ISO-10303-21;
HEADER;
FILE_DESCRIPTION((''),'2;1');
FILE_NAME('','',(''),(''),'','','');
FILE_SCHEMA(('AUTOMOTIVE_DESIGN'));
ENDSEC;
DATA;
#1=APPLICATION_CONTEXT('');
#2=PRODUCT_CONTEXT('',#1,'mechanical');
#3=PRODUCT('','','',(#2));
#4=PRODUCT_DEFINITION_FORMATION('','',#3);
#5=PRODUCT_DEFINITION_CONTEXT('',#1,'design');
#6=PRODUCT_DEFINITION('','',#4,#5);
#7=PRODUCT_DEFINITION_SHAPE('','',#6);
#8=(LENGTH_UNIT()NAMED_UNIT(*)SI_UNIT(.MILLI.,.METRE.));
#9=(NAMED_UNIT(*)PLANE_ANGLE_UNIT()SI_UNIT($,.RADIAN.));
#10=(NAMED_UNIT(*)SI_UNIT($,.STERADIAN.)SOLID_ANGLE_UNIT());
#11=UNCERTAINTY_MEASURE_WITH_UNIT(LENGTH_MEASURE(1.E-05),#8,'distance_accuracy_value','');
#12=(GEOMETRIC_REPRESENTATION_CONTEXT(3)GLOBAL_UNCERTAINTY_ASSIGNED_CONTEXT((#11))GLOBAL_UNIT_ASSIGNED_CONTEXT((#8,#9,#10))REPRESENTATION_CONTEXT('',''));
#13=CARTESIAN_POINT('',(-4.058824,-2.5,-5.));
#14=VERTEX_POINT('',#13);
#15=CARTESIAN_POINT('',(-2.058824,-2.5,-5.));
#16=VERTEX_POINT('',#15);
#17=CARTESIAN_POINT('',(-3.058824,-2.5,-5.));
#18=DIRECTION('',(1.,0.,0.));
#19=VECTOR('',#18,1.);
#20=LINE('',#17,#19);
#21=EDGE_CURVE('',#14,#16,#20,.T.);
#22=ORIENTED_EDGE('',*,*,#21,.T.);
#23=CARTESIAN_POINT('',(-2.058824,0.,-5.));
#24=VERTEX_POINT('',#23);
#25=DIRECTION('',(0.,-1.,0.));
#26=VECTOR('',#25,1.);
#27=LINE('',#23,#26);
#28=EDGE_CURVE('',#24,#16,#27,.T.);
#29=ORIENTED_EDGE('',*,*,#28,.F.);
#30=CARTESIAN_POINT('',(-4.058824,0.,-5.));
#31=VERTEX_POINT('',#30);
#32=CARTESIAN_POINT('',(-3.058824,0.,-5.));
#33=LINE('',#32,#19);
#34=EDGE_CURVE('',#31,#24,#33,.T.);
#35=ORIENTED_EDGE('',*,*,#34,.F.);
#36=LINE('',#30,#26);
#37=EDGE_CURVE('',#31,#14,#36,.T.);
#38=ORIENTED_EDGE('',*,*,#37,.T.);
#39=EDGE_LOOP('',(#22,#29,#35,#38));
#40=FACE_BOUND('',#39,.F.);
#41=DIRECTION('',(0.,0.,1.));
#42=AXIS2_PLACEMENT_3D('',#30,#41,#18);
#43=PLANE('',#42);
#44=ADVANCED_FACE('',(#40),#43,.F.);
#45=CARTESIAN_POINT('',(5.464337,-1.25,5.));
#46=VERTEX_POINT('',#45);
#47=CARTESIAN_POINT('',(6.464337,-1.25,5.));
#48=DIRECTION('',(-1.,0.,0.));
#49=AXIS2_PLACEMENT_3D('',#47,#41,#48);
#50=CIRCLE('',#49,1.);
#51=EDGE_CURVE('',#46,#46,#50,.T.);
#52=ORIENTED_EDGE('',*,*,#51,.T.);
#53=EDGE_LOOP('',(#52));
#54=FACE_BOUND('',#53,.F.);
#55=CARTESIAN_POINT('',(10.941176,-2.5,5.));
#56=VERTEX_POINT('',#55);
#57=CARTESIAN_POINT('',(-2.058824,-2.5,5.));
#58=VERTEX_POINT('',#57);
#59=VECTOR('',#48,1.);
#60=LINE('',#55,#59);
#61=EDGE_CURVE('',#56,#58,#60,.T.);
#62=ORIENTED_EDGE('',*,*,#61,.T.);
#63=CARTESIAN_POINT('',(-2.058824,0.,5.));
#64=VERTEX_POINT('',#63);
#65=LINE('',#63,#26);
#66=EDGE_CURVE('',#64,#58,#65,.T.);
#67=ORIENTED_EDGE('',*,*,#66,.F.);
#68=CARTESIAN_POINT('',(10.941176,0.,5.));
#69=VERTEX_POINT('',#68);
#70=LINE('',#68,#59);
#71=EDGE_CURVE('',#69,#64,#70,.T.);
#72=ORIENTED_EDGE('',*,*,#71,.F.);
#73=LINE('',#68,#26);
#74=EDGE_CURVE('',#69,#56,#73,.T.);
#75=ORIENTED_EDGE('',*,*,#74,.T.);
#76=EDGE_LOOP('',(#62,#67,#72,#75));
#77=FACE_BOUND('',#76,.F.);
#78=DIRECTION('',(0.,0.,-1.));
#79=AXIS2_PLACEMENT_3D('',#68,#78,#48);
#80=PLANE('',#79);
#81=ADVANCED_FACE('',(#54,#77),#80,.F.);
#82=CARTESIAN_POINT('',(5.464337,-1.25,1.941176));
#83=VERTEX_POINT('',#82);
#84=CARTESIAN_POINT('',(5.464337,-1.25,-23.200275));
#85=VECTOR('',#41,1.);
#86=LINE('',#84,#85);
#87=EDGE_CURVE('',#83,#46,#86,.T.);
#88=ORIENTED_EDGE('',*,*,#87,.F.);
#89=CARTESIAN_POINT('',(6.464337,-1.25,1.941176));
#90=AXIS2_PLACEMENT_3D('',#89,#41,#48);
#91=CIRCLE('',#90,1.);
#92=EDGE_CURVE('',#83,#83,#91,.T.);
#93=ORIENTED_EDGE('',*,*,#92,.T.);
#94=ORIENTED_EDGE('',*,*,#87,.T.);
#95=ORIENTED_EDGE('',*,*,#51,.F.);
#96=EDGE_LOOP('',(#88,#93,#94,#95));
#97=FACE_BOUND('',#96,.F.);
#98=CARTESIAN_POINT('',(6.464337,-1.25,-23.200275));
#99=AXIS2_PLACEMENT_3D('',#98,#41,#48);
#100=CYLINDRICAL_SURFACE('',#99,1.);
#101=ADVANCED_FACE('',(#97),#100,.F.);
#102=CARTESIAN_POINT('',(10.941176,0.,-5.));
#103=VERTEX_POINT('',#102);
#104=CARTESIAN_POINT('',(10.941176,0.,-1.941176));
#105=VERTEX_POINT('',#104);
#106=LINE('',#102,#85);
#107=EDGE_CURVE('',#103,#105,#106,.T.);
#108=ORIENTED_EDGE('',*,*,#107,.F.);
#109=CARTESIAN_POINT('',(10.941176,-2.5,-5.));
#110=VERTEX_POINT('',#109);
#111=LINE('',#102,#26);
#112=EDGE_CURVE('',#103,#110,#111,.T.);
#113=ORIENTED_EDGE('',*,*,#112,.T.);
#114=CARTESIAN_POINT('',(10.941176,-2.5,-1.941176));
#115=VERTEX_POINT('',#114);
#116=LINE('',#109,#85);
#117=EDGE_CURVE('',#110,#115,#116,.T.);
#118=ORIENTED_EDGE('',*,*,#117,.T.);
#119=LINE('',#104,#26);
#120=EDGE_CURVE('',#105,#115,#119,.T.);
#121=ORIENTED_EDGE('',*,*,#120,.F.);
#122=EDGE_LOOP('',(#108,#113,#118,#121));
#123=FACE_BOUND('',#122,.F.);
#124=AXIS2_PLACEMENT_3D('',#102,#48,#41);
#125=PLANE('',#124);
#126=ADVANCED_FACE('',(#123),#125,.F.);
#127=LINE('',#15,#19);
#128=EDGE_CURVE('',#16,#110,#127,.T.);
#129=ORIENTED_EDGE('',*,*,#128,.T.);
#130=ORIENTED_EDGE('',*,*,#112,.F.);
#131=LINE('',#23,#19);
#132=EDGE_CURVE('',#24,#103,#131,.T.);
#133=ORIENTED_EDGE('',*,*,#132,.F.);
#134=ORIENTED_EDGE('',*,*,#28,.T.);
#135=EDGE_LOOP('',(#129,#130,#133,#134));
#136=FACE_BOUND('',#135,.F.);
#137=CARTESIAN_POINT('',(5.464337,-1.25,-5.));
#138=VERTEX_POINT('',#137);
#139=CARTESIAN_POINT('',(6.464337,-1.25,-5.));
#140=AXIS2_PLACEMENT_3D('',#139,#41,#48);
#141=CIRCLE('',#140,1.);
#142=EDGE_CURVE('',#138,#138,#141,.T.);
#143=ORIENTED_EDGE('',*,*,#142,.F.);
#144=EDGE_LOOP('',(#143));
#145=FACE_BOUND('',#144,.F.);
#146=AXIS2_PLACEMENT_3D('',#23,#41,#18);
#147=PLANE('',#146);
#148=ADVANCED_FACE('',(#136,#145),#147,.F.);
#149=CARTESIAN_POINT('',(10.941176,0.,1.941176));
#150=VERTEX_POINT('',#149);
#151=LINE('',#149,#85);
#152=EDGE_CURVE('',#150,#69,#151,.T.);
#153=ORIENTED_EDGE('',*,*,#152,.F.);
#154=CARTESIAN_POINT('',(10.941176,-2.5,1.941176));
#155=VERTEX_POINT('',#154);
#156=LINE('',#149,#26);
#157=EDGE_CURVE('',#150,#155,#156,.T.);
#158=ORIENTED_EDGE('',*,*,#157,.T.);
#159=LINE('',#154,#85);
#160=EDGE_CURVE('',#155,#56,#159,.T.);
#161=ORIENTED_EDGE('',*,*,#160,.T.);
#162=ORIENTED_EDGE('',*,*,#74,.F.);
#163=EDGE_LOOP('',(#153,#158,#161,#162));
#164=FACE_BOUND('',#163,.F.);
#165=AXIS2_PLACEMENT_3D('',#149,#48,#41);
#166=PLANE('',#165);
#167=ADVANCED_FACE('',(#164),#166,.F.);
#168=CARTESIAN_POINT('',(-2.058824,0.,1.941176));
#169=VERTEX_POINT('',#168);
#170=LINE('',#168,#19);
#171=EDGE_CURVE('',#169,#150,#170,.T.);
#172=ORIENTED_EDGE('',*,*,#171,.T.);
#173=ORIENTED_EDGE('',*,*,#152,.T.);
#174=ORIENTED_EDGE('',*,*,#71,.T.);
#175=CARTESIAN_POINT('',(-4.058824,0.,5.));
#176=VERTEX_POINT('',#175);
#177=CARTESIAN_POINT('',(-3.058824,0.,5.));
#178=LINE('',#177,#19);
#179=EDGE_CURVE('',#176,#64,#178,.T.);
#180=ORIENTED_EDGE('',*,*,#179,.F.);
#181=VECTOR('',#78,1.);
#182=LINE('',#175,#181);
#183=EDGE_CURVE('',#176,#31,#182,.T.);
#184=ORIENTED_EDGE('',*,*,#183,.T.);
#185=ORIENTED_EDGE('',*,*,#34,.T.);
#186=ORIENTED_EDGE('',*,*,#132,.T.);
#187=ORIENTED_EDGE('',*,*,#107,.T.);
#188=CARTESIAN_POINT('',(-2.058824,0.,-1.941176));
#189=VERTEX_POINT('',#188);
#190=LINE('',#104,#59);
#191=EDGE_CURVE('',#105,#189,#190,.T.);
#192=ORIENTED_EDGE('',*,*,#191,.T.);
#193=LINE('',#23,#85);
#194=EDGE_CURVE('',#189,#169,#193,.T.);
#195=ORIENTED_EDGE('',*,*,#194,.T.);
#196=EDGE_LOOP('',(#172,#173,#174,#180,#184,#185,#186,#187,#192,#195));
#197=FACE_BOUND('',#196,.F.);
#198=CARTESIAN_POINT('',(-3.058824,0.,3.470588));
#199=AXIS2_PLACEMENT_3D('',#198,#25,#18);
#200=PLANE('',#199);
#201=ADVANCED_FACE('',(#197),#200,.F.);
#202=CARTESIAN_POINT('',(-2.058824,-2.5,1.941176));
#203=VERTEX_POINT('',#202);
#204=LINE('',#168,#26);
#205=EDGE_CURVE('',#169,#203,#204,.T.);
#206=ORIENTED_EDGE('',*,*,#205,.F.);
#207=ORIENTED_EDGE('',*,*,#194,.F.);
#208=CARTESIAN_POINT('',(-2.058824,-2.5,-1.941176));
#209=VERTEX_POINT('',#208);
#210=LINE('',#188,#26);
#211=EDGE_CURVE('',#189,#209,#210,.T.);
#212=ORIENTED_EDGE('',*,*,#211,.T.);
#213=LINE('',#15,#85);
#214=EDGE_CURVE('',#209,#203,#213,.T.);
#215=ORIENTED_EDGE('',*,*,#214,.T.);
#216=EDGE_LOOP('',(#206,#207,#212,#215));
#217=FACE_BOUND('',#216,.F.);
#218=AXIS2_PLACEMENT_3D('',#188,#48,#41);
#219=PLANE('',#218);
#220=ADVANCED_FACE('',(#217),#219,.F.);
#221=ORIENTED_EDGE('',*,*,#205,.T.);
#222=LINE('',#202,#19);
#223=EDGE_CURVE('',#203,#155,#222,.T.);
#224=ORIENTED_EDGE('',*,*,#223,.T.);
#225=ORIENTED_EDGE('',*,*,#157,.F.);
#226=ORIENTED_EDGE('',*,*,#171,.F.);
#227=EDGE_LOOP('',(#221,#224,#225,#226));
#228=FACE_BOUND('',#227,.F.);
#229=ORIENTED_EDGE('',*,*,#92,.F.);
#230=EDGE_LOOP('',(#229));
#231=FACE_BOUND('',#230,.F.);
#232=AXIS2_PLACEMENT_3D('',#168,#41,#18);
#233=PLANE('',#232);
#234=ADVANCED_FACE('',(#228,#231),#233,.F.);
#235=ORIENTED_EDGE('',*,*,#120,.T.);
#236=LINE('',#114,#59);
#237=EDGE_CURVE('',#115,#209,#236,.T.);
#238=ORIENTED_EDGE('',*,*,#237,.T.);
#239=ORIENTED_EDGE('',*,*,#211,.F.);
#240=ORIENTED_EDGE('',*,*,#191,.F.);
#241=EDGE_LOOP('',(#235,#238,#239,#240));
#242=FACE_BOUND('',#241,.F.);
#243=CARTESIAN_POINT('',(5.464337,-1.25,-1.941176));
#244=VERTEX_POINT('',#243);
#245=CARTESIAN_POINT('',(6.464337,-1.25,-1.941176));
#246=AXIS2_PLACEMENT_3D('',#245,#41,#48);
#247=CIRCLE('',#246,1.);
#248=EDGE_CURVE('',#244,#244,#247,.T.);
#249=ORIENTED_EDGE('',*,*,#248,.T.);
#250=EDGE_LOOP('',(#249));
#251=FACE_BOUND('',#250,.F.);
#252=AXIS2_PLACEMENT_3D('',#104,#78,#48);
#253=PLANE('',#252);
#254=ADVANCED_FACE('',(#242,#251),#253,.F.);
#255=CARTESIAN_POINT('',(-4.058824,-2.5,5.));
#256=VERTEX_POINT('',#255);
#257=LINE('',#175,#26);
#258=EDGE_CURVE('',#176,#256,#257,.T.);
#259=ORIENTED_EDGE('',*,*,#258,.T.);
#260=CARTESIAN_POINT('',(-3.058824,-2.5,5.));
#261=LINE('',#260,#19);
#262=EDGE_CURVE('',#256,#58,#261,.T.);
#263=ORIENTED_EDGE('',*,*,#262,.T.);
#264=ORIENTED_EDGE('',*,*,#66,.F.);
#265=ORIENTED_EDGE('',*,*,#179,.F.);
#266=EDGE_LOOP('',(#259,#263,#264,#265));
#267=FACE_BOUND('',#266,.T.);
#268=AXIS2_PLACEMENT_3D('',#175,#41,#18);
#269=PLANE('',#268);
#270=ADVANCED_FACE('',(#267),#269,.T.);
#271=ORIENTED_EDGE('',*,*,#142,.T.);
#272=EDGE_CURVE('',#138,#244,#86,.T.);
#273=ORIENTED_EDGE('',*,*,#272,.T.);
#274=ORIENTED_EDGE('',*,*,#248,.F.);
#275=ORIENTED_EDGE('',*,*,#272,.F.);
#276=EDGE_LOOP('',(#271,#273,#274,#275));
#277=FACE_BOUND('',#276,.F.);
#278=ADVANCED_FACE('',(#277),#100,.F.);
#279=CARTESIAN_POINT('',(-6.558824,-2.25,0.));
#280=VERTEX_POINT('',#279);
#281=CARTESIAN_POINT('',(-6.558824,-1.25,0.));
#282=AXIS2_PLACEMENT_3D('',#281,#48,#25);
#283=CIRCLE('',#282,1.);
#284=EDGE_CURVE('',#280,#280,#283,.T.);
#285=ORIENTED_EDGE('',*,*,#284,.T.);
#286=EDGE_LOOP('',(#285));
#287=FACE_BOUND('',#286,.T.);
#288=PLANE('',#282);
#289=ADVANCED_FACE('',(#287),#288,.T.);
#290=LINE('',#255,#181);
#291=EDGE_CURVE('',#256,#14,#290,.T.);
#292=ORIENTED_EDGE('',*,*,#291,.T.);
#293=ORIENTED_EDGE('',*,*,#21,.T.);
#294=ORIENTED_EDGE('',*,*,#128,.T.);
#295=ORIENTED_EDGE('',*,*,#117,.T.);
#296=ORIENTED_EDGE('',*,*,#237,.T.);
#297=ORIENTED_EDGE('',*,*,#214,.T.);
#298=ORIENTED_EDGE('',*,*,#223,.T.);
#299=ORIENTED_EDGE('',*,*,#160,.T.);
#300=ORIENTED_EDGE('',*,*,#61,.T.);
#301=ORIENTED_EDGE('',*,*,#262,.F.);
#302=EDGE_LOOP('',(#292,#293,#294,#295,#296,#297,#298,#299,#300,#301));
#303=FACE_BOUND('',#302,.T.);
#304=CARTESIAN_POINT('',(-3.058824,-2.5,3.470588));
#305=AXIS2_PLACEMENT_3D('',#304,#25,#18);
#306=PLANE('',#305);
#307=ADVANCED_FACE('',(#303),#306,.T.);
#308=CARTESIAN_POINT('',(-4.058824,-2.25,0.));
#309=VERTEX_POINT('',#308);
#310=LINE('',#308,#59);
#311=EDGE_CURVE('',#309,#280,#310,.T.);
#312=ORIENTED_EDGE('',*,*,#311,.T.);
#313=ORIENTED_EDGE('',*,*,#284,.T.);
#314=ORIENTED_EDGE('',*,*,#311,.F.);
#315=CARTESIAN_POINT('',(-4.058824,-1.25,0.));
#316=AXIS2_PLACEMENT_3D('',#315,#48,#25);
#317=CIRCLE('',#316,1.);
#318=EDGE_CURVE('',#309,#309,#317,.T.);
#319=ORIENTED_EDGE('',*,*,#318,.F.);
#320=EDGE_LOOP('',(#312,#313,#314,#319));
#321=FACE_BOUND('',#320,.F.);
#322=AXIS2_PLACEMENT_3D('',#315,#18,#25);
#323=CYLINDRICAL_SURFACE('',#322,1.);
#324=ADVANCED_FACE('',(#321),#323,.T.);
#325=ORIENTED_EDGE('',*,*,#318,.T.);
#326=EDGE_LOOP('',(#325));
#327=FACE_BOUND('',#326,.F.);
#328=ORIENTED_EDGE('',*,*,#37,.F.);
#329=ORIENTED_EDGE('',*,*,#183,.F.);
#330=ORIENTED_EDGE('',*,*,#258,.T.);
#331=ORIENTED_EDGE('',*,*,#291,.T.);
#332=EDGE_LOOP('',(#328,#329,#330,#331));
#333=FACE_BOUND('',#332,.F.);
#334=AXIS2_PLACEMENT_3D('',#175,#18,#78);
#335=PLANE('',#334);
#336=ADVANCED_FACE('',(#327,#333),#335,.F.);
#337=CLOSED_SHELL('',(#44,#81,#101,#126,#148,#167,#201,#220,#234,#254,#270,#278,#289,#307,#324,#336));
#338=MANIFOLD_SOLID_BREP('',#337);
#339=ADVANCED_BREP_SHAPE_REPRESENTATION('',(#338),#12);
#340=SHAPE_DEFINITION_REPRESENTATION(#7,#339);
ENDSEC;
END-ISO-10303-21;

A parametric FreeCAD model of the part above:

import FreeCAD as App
import Part
import Sketcher

V = App.Vector
Q = App.Units.Quantity

doc = App.newDocument("Part")
params = doc.addObject("Spreadsheet::Sheet", "Params")
for row, (alias, value) in enumerate([
    ("sketch1_width", "2 mm"),
    ("sketch1_width2", "13 mm"),
    ("sketch1_height", "10 mm"),
    ("pad1_length", "2.5 mm"),
    ("sketch2_diameter", "2 mm"),
    ("hole_diameter", "2 mm"),
    ("sketch3_diameter", "2 mm"),
    ("pad2_length", "2.5 mm"),
], start=1):
    params.set(f"A{row}", alias)
    params.set(f"B{row}", "=" + value)
    params.setAlias(f"B{row}", alias)

body = doc.addObject("PartDesign::Body", "Body")

sketch1 = body.newObject("Sketcher::SketchObject", "Sketch")
sketch1.AttachmentSupport = (doc.getObject("XZ_Plane"), [""])
sketch1.MapMode = "FlatFace"
sketch1.addGeometry(Part.LineSegment(V(-4.1, 5, 0), V(-4.1, -5, 0)), False)
sketch1.addGeometry(Part.LineSegment(V(-4.1, -5, 0), V(-2.1, -5, 0)), False)
sketch1.addGeometry(Part.LineSegment(V(-2.1, -5, 0), V(10.9, -5, 0)), False)
sketch1.addGeometry(Part.LineSegment(V(10.9, -5, 0), V(10.9, -1.9, 0)), False)
sketch1.addGeometry(Part.LineSegment(V(10.9, -1.9, 0), V(-2.1, -1.9, 0)), False)
sketch1.addGeometry(Part.LineSegment(V(-2.1, -1.9, 0), V(-2.1, 1.9, 0)), False)
sketch1.addGeometry(Part.LineSegment(V(-2.1, 1.9, 0), V(10.9, 1.9, 0)), False)
sketch1.addGeometry(Part.LineSegment(V(10.9, 1.9, 0), V(10.9, 5, 0)), False)
sketch1.addGeometry(Part.LineSegment(V(10.9, 5, 0), V(-2.1, 5, 0)), False)
sketch1.addGeometry(Part.LineSegment(V(-2.1, 5, 0), V(-4.1, 5, 0)), False)
sketch1.addConstraint(Sketcher.Constraint("Coincident", 0, 2, 1, 1))
sketch1.addConstraint(Sketcher.Constraint("Coincident", 1, 2, 2, 1))
sketch1.addConstraint(Sketcher.Constraint("Coincident", 2, 2, 3, 1))
sketch1.addConstraint(Sketcher.Constraint("Coincident", 3, 2, 4, 1))
sketch1.addConstraint(Sketcher.Constraint("Coincident", 4, 2, 5, 1))
sketch1.addConstraint(Sketcher.Constraint("Coincident", 5, 2, 6, 1))
sketch1.addConstraint(Sketcher.Constraint("Coincident", 6, 2, 7, 1))
sketch1.addConstraint(Sketcher.Constraint("Coincident", 7, 2, 8, 1))
sketch1.addConstraint(Sketcher.Constraint("Coincident", 8, 2, 9, 1))
sketch1.addConstraint(Sketcher.Constraint("Coincident", 9, 2, 0, 1))
sketch1.addConstraint(Sketcher.Constraint("Vertical", 0))
sketch1.addConstraint(Sketcher.Constraint("Horizontal", 1))
sketch1.addConstraint(Sketcher.Constraint("Horizontal", 2))
sketch1.addConstraint(Sketcher.Constraint("Vertical", 3))
sketch1.addConstraint(Sketcher.Constraint("Horizontal", 4))
sketch1.addConstraint(Sketcher.Constraint("Vertical", 5))
sketch1.addConstraint(Sketcher.Constraint("Horizontal", 6))
sketch1.addConstraint(Sketcher.Constraint("Vertical", 7))
sketch1.addConstraint(Sketcher.Constraint("Horizontal", 8))
sketch1.addConstraint(Sketcher.Constraint("Horizontal", 9))
sketch1.addConstraint(Sketcher.Constraint("Symmetric", 3, 2, 6, 2, -1))
sketch1.addConstraint(Sketcher.Constraint("Symmetric", 1, 2, 8, 2, -1))
sketch1.addConstraint(Sketcher.Constraint("Vertical", 1, 2, 4, 2))
sketch1.addConstraint(Sketcher.Constraint("DistanceX", 1, 1, 1, 2, Q("2 mm")))
sketch1.addConstraint(Sketcher.Constraint("DistanceX", 2, 1, 2, 2, Q("13 mm")))
sketch1.addConstraint(Sketcher.Constraint("DistanceY", 0, 2, 0, 1, Q("10 mm")))
sketch1.addConstraint(Sketcher.Constraint("DistanceY", 3, 1, 3, 2, Q("3.058824 mm")))
sketch1.addConstraint(Sketcher.Constraint("DistanceX", 0, 2, -1, 1, Q("4.058824 mm")))
sketch1.setExpression("Constraints[23]", "Params.sketch1_width")
sketch1.setExpression("Constraints[24]", "Params.sketch1_width2")
sketch1.setExpression("Constraints[25]", "Params.sketch1_height")
pad1 = body.newObject("PartDesign::Pad", "Pad")
pad1.Profile = sketch1
pad1.setExpression("Length", "Params.pad1_length")

sketch2 = body.newObject("Sketcher::SketchObject", "Sketch001")
sketch2.AttachmentSupport = (doc.getObject("XY_Plane"), [""])
sketch2.MapMode = "FlatFace"
sketch2.AttachmentOffset = App.Placement(V(0, 0, -5), App.Rotation())
sketch2.addGeometry(Part.Circle(V(6.5, -1.2, 0), V(0, 0, 1), 1), False)
sketch2.addConstraint(Sketcher.Constraint("Diameter", 0, Q("2 mm")))
sketch2.addConstraint(Sketcher.Constraint("DistanceY", 0, 3, -1, 1, Q("1.25 mm")))
sketch2.addConstraint(Sketcher.Constraint("DistanceX", -1, 1, 0, 3, Q("6.464337 mm")))
sketch2.setExpression("Constraints[0]", "Params.sketch2_diameter")
doc.recompute()
hole = body.newObject("PartDesign::Hole", "Hole")
hole.Profile = sketch2
hole.ThreadType = "None"
hole.setExpression("Diameter", "Params.hole_diameter")
hole.DepthType = "ThroughAll"
hole.Reversed = True

sketch3 = body.newObject("Sketcher::SketchObject", "Sketch002")
sketch3.AttachmentSupport = (doc.getObject("YZ_Plane"), [""])
sketch3.MapMode = "FlatFace"
sketch3.AttachmentOffset = App.Placement(V(0, 0, -4.058824), App.Rotation())
sketch3.addGeometry(Part.Circle(V(-1.2, 0, 0), V(0, 0, 1), 1), False)
sketch3.addConstraint(Sketcher.Constraint("PointOnObject", 0, 3, -1))
sketch3.addConstraint(Sketcher.Constraint("Diameter", 0, Q("2 mm")))
sketch3.addConstraint(Sketcher.Constraint("DistanceX", 0, 3, -1, 1, Q("1.25 mm")))
sketch3.setExpression("Constraints[1]", "Params.sketch3_diameter")
pad2 = body.newObject("PartDesign::Pad", "Pad001")
pad2.Profile = sketch3
pad2.setExpression("Length", "Params.pad2_length")
pad2.Reversed = True

doc.recompute()
